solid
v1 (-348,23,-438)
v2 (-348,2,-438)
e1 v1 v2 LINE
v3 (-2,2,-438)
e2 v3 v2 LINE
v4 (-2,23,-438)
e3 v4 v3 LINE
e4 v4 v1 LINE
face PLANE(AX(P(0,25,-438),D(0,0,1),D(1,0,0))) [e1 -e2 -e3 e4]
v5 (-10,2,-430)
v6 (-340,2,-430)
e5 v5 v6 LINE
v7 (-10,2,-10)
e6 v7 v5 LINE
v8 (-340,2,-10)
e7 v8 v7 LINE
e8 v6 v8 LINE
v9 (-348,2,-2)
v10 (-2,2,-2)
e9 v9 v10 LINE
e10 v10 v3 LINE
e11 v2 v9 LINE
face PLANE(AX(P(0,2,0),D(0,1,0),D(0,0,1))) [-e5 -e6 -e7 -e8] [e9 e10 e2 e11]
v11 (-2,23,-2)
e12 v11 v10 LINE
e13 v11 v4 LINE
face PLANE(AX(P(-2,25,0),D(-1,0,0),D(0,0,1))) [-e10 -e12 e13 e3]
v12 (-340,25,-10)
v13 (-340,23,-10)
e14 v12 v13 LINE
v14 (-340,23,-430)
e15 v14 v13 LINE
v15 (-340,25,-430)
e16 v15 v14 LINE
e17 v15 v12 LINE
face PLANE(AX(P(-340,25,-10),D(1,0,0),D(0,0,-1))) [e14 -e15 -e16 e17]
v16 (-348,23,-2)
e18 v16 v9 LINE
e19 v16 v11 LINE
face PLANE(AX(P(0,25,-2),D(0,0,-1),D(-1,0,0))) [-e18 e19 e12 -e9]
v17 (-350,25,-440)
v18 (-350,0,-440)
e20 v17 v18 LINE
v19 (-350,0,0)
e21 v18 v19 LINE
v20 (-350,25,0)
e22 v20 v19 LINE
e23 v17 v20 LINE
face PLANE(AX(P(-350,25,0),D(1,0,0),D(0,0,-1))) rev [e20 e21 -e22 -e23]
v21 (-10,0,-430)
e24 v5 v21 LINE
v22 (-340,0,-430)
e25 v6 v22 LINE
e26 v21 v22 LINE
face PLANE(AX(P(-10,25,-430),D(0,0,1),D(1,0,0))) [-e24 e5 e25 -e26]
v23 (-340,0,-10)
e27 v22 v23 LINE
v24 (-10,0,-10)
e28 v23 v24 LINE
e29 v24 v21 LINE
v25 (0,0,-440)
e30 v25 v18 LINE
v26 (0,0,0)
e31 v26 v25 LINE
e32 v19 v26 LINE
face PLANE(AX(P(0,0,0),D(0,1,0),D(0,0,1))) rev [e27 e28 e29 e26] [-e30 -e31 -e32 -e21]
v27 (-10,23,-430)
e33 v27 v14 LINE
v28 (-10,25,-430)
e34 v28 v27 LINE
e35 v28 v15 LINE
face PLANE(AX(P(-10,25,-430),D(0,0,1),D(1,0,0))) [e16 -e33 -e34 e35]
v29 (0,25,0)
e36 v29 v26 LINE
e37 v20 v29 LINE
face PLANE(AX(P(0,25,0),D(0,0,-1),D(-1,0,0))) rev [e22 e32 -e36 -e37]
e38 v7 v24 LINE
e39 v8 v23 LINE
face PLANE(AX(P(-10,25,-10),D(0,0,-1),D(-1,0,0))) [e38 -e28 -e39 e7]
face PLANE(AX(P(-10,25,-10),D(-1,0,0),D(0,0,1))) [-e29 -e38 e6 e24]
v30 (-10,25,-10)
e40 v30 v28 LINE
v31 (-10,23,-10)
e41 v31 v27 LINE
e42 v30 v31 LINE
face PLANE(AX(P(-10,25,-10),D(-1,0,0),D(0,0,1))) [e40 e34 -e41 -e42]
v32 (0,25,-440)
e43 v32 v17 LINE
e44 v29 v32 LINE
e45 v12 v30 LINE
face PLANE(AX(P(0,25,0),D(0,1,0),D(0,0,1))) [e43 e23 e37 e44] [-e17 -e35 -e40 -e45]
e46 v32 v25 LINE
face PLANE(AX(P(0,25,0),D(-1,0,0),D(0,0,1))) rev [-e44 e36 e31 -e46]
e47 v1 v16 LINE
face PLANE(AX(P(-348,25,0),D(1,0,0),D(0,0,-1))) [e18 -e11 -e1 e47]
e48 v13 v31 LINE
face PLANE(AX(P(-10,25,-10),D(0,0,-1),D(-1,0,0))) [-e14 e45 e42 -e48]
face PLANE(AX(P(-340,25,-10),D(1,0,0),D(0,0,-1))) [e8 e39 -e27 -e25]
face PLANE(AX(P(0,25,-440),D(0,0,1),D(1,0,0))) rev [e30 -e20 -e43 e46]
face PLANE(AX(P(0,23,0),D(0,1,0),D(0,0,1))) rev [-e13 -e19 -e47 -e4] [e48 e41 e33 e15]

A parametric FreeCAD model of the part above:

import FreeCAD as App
import Part
import Sketcher
from FreeCAD import Vector
Q = App.Units.Quantity


def faces_at(feature, points):
    """Names of the faces that lie closest to the given points."""
    faces = feature.Shape.Faces
    near = lambda p: min(range(len(faces)), key=lambda i: faces[i].distToShape(Part.Vertex(*p))[0])
    return sorted({f"Face{near(p) + 1}" for p in points})

doc = App.newDocument("Part")
body = doc.addObject("PartDesign::Body", "Body")

sketch1 = body.newObject("Sketcher::SketchObject", "Sketch")
sketch1.AttachmentSupport = (doc.getObject("XZ_Plane"), [""])
sketch1.MapMode = "FlatFace"
sketch1.addGeometry([
    Part.LineSegment(Vector(-350, -440, 0), Vector(-350, 0, 0)),
    Part.LineSegment(Vector(-350, 0, 0), Vector(0, 0, 0)),
    Part.LineSegment(Vector(0, 0, 0), Vector(0, -440, 0)),
    Part.LineSegment(Vector(0, -440, 0), Vector(-350, -440, 0)),
    Part.LineSegment(Vector(-10, -10, 0), Vector(-340, -10, 0)),
    Part.LineSegment(Vector(-340, -10, 0), Vector(-340, -430, 0)),
    Part.LineSegment(Vector(-340, -430, 0), Vector(-10, -430, 0)),
    Part.LineSegment(Vector(-10, -430, 0), Vector(-10, -10, 0)),
], False)
sketch1.addConstraint([
    Sketcher.Constraint("Coincident", 0, 2, 1, 1),
    Sketcher.Constraint("Coincident", 1, 2, 2, 1),
    Sketcher.Constraint("Coincident", 2, 2, 3, 1),
    Sketcher.Constraint("Coincident", 3, 2, 0, 1),
    Sketcher.Constraint("Coincident", 4, 2, 5, 1),
    Sketcher.Constraint("Coincident", 5, 2, 6, 1),
    Sketcher.Constraint("Coincident", 6, 2, 7, 1),
    Sketcher.Constraint("Coincident", 7, 2, 4, 1),
    Sketcher.Constraint("Vertical", 0),
    Sketcher.Constraint("Horizontal", 1),
    Sketcher.Constraint("Vertical", 2),
    Sketcher.Constraint("Horizontal", 3),
    Sketcher.Constraint("Horizontal", 4),
    Sketcher.Constraint("Vertical", 5),
    Sketcher.Constraint("Horizontal", 6),
    Sketcher.Constraint("Vertical", 7),
    Sketcher.Constraint("Coincident", 1, 2, -1, 1),
    Sketcher.Constraint("DistanceX", 1, 1, 1, 2, Q("350 mm")),
    Sketcher.Constraint("DistanceX", 4, 2, 4, 1, Q("330 mm")),
    Sketcher.Constraint("DistanceY", 0, 1, 0, 2, Q("440 mm")),
    Sketcher.Constraint("DistanceY", 5, 2, 5, 1, Q("420 mm")),
    Sketcher.Constraint("DistanceX", 4, 2, -1, 1, Q("340 mm")),
    Sketcher.Constraint("DistanceY", 4, 2, -1, 1, Q("10 mm")),
])
pad1 = body.newObject("PartDesign::Pad", "Pad")
pad1.Profile = sketch1
pad1.Length = 25
pad1.Reversed = True
doc.recompute()

thickness = body.newObject("PartDesign::Thickness", "Thickness")
thickness.Base = (pad1, faces_at(pad1, [
    (-175, 12.5, -10),
    (-10, 12.5, -220),
    (-175, 12.5, -430),
    (-340, 12.5, -220),
]))
thickness.Value = 2
thickness.Reversed = True
thickness.Join = "Intersection"

doc.recompute()
